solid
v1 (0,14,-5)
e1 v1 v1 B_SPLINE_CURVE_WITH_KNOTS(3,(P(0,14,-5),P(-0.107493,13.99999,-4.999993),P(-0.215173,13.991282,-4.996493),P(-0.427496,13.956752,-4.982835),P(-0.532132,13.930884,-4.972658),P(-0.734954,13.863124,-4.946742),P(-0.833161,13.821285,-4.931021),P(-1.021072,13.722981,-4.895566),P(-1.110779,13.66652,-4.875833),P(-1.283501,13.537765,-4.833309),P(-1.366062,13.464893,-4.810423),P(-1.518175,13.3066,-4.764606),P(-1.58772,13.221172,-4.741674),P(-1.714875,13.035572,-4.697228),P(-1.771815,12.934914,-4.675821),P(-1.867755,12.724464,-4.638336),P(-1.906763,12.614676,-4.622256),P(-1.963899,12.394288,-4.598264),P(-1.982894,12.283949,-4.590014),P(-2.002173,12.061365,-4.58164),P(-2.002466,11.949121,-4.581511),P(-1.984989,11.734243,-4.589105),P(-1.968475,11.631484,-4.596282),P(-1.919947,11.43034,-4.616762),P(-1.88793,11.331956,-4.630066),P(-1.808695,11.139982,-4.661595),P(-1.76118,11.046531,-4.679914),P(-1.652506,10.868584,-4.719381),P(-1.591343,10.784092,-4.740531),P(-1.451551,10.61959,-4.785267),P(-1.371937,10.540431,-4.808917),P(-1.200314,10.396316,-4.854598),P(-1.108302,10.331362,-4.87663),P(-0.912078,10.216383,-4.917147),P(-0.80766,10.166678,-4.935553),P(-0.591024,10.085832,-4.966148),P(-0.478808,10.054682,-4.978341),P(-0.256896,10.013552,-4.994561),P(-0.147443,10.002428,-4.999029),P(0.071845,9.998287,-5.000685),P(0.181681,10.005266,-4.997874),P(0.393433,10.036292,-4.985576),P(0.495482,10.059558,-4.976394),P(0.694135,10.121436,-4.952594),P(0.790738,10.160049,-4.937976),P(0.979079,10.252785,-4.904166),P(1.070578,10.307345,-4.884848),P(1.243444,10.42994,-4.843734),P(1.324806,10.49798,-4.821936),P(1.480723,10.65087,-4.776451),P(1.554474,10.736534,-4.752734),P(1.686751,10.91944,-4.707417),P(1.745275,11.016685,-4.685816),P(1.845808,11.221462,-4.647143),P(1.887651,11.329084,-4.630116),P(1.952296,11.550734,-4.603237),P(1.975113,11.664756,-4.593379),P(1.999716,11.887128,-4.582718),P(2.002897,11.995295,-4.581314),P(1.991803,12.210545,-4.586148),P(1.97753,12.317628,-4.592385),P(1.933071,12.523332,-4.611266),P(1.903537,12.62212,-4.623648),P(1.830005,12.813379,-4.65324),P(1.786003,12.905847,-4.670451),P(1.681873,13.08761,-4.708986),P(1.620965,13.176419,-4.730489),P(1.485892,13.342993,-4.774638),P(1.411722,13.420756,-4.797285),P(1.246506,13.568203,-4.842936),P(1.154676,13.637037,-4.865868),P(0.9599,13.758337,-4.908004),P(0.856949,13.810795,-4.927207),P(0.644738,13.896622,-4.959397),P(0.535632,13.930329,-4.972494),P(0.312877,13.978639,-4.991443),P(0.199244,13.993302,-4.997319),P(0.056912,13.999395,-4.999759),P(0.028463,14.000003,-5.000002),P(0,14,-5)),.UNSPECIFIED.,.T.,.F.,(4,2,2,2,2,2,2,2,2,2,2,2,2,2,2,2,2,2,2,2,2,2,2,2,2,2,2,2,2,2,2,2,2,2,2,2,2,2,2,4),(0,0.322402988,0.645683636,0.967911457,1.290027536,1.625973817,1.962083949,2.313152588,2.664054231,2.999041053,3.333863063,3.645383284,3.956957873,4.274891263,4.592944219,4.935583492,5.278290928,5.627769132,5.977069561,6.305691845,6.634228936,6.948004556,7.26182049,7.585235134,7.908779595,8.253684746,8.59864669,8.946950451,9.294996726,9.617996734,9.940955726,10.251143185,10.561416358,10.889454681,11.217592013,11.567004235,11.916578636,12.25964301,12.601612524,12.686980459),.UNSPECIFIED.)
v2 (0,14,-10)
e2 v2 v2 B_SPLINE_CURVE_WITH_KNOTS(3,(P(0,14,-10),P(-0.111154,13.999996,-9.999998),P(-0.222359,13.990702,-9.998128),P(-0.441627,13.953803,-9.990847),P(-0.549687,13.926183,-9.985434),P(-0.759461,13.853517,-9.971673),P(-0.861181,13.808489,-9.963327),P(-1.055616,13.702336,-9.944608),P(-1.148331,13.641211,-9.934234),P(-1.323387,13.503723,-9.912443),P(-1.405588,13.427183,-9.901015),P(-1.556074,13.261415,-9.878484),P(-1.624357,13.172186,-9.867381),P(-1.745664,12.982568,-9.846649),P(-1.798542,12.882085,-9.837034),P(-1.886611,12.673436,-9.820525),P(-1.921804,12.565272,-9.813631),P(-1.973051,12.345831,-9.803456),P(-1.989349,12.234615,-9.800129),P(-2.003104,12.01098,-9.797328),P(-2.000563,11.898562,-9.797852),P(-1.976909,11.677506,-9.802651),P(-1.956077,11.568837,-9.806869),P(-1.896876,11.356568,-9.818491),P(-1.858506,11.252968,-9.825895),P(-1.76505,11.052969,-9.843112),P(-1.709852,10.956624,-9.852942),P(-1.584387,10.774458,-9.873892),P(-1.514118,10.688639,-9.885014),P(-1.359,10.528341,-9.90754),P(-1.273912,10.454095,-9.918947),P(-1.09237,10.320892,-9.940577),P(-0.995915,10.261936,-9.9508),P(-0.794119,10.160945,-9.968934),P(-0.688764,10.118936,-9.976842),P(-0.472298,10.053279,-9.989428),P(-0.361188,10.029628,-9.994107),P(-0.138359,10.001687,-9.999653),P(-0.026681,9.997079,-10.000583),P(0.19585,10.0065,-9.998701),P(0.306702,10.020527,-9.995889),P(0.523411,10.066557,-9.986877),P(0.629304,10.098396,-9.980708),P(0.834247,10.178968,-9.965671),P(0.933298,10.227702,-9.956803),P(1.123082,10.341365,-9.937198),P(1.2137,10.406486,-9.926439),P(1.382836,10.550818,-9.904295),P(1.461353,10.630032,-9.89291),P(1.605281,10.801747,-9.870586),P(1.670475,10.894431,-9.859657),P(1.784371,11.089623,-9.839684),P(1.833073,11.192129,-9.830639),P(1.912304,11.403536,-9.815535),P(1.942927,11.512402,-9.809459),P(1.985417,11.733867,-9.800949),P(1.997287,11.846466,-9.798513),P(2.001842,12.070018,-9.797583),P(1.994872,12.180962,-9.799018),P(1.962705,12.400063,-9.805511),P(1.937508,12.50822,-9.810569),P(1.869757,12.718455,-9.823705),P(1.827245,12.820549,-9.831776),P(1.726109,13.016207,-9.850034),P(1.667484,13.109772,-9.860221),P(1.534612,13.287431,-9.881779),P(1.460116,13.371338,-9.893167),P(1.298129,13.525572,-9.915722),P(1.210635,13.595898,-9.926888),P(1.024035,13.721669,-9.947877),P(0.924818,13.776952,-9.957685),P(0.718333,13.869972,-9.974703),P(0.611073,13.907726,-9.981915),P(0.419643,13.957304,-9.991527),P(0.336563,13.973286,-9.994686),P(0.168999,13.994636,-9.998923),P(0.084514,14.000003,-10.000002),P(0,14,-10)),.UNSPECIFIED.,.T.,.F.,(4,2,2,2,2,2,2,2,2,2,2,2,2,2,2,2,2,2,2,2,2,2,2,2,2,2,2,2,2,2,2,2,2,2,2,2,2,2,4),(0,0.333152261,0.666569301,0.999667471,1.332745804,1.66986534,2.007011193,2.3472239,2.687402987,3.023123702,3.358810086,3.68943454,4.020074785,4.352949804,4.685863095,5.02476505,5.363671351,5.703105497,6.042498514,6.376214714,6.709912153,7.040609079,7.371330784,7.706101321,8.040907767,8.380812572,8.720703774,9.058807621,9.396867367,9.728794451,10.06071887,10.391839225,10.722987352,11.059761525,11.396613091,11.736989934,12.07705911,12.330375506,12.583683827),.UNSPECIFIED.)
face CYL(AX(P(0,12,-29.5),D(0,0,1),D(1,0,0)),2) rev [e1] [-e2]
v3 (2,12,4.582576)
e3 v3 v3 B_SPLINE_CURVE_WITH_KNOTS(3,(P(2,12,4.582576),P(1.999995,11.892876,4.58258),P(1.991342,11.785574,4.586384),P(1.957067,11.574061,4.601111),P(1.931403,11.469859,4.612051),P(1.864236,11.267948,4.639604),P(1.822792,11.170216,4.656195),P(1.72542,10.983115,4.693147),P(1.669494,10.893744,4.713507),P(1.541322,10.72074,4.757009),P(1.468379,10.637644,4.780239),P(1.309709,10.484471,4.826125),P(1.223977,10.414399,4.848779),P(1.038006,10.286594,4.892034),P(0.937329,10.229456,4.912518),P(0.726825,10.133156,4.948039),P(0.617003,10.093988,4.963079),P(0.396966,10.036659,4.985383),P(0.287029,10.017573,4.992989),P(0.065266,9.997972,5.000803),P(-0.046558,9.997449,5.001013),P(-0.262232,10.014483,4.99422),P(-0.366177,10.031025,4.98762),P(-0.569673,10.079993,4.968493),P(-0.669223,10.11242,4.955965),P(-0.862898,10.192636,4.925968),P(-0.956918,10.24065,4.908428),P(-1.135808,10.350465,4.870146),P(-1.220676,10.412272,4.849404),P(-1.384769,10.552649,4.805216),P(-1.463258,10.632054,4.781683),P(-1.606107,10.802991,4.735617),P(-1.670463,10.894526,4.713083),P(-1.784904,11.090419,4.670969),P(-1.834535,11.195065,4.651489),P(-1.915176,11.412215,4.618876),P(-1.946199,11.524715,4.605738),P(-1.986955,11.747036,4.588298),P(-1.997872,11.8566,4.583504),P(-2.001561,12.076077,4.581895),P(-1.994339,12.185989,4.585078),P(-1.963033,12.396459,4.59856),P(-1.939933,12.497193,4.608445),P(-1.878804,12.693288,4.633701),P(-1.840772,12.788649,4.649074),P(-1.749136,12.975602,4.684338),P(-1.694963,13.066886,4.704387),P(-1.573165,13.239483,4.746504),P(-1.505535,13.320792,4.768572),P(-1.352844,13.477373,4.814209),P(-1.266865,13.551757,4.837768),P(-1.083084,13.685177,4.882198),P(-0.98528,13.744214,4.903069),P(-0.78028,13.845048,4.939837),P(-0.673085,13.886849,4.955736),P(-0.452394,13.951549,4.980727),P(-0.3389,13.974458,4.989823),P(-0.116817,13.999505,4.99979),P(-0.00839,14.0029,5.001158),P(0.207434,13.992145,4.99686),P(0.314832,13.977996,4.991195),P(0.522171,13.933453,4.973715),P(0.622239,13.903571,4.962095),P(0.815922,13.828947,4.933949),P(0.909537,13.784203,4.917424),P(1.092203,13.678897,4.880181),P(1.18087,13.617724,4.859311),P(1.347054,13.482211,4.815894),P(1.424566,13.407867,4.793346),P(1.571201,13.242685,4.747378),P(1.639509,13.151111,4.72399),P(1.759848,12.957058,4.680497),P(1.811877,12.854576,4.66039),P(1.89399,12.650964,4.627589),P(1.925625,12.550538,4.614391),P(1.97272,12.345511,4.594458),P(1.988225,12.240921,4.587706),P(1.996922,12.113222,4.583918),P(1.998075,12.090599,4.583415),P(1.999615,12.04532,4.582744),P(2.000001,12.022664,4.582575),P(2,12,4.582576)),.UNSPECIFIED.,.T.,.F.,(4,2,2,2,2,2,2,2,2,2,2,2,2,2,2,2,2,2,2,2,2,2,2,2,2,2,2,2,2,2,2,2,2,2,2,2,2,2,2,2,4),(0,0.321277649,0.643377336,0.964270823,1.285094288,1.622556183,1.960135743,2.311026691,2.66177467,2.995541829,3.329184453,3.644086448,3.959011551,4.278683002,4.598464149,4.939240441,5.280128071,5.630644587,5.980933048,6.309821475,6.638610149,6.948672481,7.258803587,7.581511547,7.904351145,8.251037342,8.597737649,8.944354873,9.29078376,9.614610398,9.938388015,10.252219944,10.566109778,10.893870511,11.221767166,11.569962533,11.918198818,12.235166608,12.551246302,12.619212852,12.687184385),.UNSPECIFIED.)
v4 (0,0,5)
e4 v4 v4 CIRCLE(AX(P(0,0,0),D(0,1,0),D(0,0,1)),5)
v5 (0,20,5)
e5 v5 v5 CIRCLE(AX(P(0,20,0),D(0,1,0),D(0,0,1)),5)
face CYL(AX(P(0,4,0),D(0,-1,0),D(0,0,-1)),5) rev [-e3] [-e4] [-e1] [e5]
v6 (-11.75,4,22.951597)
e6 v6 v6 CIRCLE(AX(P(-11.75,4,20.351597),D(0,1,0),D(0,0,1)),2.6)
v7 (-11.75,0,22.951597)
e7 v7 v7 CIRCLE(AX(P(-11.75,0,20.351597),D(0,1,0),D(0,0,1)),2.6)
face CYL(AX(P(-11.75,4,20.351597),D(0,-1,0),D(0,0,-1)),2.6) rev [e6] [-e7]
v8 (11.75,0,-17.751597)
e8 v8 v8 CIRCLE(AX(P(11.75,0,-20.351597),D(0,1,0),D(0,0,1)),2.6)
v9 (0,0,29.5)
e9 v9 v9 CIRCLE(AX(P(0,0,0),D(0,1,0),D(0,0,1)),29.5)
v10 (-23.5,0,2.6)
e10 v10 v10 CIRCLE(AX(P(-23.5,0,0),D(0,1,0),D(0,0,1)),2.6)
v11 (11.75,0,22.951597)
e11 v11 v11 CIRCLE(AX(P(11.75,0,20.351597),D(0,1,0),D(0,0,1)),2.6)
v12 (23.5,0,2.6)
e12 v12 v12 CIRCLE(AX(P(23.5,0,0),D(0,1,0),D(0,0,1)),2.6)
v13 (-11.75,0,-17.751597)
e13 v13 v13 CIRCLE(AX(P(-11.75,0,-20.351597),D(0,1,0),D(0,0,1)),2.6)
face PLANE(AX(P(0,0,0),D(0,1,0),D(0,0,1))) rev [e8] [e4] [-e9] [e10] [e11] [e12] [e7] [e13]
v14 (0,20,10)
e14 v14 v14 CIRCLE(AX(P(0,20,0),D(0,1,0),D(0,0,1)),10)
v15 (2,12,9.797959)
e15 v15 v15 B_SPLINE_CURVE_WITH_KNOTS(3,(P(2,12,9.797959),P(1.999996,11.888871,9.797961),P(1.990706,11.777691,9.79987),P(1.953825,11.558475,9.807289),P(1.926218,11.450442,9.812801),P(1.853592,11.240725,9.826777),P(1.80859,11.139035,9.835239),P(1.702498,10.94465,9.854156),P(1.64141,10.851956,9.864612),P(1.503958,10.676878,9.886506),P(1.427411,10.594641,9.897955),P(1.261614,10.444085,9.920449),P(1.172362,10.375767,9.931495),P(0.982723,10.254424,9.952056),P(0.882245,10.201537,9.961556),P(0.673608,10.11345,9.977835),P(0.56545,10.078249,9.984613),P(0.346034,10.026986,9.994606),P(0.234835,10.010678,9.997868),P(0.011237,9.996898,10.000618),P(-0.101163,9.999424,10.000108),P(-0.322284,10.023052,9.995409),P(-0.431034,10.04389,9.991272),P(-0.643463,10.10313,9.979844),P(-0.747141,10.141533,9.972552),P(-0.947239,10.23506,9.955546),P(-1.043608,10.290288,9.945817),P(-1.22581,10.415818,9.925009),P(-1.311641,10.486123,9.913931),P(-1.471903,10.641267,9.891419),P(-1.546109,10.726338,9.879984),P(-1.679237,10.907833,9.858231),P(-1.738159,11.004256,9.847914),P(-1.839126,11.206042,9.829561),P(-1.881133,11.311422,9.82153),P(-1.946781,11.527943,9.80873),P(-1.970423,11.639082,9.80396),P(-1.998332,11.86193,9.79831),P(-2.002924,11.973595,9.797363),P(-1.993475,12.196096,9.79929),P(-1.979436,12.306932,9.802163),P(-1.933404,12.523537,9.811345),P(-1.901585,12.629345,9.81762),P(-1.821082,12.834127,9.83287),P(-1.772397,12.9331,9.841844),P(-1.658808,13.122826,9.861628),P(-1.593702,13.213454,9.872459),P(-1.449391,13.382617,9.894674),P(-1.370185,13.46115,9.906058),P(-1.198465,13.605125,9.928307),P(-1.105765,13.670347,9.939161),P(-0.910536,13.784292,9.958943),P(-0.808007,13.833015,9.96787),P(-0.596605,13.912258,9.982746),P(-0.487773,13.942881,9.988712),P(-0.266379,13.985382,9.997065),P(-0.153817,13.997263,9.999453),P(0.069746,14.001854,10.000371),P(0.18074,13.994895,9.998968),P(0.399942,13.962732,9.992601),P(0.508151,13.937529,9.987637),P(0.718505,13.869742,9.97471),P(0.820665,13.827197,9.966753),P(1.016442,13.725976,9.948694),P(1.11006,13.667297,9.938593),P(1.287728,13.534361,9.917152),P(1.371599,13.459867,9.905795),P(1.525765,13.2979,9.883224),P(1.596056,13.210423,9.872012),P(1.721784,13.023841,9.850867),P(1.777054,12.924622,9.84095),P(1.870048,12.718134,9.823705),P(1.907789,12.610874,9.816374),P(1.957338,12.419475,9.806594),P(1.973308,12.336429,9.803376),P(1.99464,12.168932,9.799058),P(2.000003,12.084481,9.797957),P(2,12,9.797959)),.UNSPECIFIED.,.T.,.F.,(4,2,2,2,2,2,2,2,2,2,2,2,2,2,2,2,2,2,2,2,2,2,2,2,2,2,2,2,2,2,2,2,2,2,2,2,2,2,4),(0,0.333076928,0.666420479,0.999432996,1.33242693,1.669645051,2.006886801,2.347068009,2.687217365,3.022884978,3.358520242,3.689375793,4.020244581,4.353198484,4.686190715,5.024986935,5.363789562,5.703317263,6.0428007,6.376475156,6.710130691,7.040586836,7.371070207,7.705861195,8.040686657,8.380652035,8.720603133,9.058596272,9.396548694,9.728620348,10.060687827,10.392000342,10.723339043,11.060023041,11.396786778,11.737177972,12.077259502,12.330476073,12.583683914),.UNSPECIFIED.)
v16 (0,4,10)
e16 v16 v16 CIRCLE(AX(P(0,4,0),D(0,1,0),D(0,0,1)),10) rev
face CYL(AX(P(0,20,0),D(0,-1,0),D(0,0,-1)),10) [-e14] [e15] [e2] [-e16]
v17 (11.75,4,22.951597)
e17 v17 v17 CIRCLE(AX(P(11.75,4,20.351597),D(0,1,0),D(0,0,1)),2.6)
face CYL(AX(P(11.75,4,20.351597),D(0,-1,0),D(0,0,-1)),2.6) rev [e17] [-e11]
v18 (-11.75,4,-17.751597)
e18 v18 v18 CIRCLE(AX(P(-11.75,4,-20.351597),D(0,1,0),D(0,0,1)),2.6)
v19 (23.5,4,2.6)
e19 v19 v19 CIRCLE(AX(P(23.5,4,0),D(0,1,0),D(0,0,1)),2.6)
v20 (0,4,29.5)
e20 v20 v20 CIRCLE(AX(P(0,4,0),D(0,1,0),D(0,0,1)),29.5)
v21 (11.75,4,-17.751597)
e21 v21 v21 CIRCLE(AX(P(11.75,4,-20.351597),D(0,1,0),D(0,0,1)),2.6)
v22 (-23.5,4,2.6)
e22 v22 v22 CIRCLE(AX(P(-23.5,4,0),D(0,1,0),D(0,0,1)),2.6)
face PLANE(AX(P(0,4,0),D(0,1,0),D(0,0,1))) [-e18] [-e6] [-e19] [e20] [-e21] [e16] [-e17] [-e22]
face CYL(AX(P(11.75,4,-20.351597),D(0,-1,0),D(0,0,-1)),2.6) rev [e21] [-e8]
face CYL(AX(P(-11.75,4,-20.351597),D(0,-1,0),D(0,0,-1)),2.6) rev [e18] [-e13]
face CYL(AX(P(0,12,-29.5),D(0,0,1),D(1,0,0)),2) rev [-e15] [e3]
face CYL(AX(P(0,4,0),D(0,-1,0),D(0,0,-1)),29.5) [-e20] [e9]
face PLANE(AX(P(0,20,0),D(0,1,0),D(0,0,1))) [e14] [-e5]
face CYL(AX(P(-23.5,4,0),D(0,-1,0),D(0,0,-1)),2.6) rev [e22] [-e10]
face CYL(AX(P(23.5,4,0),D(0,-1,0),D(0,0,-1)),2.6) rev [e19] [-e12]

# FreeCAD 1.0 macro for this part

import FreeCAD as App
import Part
import Sketcher

V = App.Vector

doc = App.newDocument("Part")
body = doc.addObject("PartDesign::Body", "Body")

# Sketch on XZ plane
sketch1 = body.newObject("Sketcher::SketchObject", "Sketch")
sketch1.AttachmentSupport = (doc.getObject("XZ_Plane"), [""])
sketch1.MapMode = "FlatFace"
sketch1.addGeometry(Part.Circle(V(0, 0, 0), V(0, 0, 1), 29.5), False)
sketch1.addGeometry(Part.Circle(V(-11.8, -20.4, 0), V(0, 0, 1), 2.6), False)
sketch1.addGeometry(Part.Circle(V(-23.5, 0, 0), V(0, 0, 1), 2.6), False)
sketch1.addGeometry(Part.Circle(V(-11.8, 20.4, 0), V(0, 0, 1), 2.6), False)
sketch1.addGeometry(Part.Circle(V(11.8, -20.4, 0), V(0, 0, 1), 2.6), False)
sketch1.addGeometry(Part.Circle(V(23.5, 0, 0), V(0, 0, 1), 2.6), False)
sketch1.addGeometry(Part.Circle(V(0, 0, 0), V(0, 0, 1), 5), False)
sketch1.addGeometry(Part.Circle(V(11.8, 20.4, 0), V(0, 0, 1), 2.6), False)
sketch1.addConstraint(Sketcher.Constraint("Coincident", 0, 3, -1, 1))
sketch1.addConstraint(Sketcher.Constraint("Coincident", 6, 3, -1, 1))
sketch1.addConstraint(Sketcher.Constraint("Equal", 1, 2))
sketch1.addConstraint(Sketcher.Constraint("Equal", 2, 3))
sketch1.addConstraint(Sketcher.Constraint("Equal", 3, 4))
sketch1.addConstraint(Sketcher.Constraint("Equal", 4, 5))
sketch1.addConstraint(Sketcher.Constraint("Equal", 5, 7))
sketch1.addConstraint(Sketcher.Constraint("Symmetric", 3, 3, 4, 3, -1, 1))
sketch1.addConstraint(Sketcher.Constraint("Symmetric", 2, 3, 5, 3, -1, 1))
sketch1.addConstraint(Sketcher.Constraint("Symmetric", 1, 3, 7, 3, -1, 1))
sketch1.addConstraint(Sketcher.Constraint("Symmetric", 1, 3, 4, 3, -2))
sketch1.addConstraint(Sketcher.Constraint("PointOnObject", 2, 3, -1))
sketch1.addConstraint(Sketcher.Constraint("Diameter", 0, 59.0))
sketch1.addConstraint(Sketcher.Constraint("Diameter", 6, 10.0))
sketch1.addConstraint(Sketcher.Constraint("Diameter", 1, 5.2))
sketch1.addConstraint(Sketcher.Constraint("DistanceX", 2, 3, 5, 3, 47.0))
sketch1.addConstraint(Sketcher.Constraint("DistanceX", 1, 3, 4, 3, 23.5))
sketch1.addConstraint(Sketcher.Constraint("DistanceY", 1, 3, -1, 1, 20.351597))
pad1 = body.newObject("PartDesign::Pad", "Pad")
pad1.Profile = sketch1
pad1.Length = 4
pad1.Reversed = True

# Sketch on XZ plane
sketch2 = body.newObject("Sketcher::SketchObject", "Sketch001")
sketch2.AttachmentSupport = (doc.getObject("XZ_Plane"), [""])
sketch2.MapMode = "FlatFace"
sketch2.addGeometry(Part.Circle(V(0, 0, 0), V(0, 0, 1), 10), False)
sketch2.addGeometry(Part.Circle(V(0, 0, 0), V(0, 0, 1), 5), False)
sketch2.addConstraint(Sketcher.Constraint("Coincident", 0, 3, -1, 1))
sketch2.addConstraint(Sketcher.Constraint("Coincident", 1, 3, -1, 1))
sketch2.addConstraint(Sketcher.Constraint("Diameter", 0, 20.0))
sketch2.addConstraint(Sketcher.Constraint("Diameter", 1, 10.0))
pad2 = body.newObject("PartDesign::Pad", "Pad001")
pad2.Profile = sketch2
pad2.Length = 20
pad2.Reversed = True

# Sketch on XY plane
sketch3 = body.newObject("Sketcher::SketchObject", "Sketch002")
sketch3.AttachmentSupport = (doc.getObject("XY_Plane"), [""])
sketch3.MapMode = "FlatFace"
sketch3.addGeometry(Part.Circle(V(0, 12, 0), V(0, 0, 1), 2), False)
sketch3.addConstraint(Sketcher.Constraint("PointOnObject", 0, 3, -2))
sketch3.addConstraint(Sketcher.Constraint("Diameter", 0, 4.0))
sketch3.addConstraint(Sketcher.Constraint("DistanceY", -1, 1, 0, 3, 12.0))
pocket1 = body.newObject("PartDesign::Pocket", "Pocket")
pocket1.Profile = sketch3
pocket1.Type = "ThroughAll"
pocket1.Midplane = True

doc.recompute()
